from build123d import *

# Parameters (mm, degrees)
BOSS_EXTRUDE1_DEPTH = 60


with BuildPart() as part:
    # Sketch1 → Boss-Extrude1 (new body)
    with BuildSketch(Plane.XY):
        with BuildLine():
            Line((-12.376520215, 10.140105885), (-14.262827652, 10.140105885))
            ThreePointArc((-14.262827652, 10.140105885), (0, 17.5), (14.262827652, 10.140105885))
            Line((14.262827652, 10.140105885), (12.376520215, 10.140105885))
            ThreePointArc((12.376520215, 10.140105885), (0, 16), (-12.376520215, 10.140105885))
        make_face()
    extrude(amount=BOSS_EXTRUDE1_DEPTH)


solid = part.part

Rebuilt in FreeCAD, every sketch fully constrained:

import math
import FreeCAD as App
import Part
import Sketcher

V = App.Vector
Q = App.Units.Quantity

doc = App.newDocument("Part")
params = doc.addObject("Spreadsheet::Sheet", "Params")
for row, (alias, value) in enumerate([
    ("sketch1_radius", "16 mm"),
    ("sketch1_radius2", "17.5 mm"),
    ("pad1_length", "60 mm"),
], start=1):
    params.set(f"A{row}", alias)
    params.set(f"B{row}", "=" + value)
    params.setAlias(f"B{row}", alias)

body = doc.addObject("PartDesign::Body", "Body")

# Sketch on XY plane
sketch1 = body.newObject("Sketcher::SketchObject", "Sketch")
sketch1.AttachmentSupport = (doc.getObject("XY_Plane"), [""])
sketch1.MapMode = "FlatFace"
sketch1.addGeometry([
    Part.LineSegment(V(-14.3, 10.1, 0), V(-12.4, 10.1, 0)),
    Part.ArcOfCircle(Part.Circle(V(0, 0, 0), V(0, 0, 1), 16), math.radians(39), math.radians(141)),
    Part.LineSegment(V(12.4, 10.1, 0), V(14.3, 10.1, 0)),
    Part.ArcOfCircle(Part.Circle(V(0, 0, 0), V(0, 0, 1), 17.5), math.radians(35), math.radians(145)),
], False)
sketch1.addConstraint([
    Sketcher.Constraint("Coincident", 0, 2, 1, 2),
    Sketcher.Constraint("Coincident", 1, 1, 2, 1),
    Sketcher.Constraint("Coincident", 2, 2, 3, 1),
    Sketcher.Constraint("Coincident", 3, 2, 0, 1),
    Sketcher.Constraint("Horizontal", 0),
    Sketcher.Constraint("Horizontal", 2),
    Sketcher.Constraint("Coincident", 1, 3, -1, 1),
    Sketcher.Constraint("Coincident", 3, 3, -1, 1),
    Sketcher.Constraint("Horizontal", 0, 2, 1, 1),
    Sketcher.Constraint("Radius", 1, Q("16 mm")),
    Sketcher.Constraint("Radius", 3, Q("17.5 mm")),
    Sketcher.Constraint("DistanceX", 0, 1, 0, 2, Q("1.886307 mm")),
])
sketch1.setExpression("Constraints[9]", "Params.sketch1_radius")
sketch1.setExpression("Constraints[10]", "Params.sketch1_radius2")
pad1 = body.newObject("PartDesign::Pad", "Pad")
pad1.Profile = sketch1
pad1.setExpression("Length", "Params.pad1_length")

doc.recompute()
